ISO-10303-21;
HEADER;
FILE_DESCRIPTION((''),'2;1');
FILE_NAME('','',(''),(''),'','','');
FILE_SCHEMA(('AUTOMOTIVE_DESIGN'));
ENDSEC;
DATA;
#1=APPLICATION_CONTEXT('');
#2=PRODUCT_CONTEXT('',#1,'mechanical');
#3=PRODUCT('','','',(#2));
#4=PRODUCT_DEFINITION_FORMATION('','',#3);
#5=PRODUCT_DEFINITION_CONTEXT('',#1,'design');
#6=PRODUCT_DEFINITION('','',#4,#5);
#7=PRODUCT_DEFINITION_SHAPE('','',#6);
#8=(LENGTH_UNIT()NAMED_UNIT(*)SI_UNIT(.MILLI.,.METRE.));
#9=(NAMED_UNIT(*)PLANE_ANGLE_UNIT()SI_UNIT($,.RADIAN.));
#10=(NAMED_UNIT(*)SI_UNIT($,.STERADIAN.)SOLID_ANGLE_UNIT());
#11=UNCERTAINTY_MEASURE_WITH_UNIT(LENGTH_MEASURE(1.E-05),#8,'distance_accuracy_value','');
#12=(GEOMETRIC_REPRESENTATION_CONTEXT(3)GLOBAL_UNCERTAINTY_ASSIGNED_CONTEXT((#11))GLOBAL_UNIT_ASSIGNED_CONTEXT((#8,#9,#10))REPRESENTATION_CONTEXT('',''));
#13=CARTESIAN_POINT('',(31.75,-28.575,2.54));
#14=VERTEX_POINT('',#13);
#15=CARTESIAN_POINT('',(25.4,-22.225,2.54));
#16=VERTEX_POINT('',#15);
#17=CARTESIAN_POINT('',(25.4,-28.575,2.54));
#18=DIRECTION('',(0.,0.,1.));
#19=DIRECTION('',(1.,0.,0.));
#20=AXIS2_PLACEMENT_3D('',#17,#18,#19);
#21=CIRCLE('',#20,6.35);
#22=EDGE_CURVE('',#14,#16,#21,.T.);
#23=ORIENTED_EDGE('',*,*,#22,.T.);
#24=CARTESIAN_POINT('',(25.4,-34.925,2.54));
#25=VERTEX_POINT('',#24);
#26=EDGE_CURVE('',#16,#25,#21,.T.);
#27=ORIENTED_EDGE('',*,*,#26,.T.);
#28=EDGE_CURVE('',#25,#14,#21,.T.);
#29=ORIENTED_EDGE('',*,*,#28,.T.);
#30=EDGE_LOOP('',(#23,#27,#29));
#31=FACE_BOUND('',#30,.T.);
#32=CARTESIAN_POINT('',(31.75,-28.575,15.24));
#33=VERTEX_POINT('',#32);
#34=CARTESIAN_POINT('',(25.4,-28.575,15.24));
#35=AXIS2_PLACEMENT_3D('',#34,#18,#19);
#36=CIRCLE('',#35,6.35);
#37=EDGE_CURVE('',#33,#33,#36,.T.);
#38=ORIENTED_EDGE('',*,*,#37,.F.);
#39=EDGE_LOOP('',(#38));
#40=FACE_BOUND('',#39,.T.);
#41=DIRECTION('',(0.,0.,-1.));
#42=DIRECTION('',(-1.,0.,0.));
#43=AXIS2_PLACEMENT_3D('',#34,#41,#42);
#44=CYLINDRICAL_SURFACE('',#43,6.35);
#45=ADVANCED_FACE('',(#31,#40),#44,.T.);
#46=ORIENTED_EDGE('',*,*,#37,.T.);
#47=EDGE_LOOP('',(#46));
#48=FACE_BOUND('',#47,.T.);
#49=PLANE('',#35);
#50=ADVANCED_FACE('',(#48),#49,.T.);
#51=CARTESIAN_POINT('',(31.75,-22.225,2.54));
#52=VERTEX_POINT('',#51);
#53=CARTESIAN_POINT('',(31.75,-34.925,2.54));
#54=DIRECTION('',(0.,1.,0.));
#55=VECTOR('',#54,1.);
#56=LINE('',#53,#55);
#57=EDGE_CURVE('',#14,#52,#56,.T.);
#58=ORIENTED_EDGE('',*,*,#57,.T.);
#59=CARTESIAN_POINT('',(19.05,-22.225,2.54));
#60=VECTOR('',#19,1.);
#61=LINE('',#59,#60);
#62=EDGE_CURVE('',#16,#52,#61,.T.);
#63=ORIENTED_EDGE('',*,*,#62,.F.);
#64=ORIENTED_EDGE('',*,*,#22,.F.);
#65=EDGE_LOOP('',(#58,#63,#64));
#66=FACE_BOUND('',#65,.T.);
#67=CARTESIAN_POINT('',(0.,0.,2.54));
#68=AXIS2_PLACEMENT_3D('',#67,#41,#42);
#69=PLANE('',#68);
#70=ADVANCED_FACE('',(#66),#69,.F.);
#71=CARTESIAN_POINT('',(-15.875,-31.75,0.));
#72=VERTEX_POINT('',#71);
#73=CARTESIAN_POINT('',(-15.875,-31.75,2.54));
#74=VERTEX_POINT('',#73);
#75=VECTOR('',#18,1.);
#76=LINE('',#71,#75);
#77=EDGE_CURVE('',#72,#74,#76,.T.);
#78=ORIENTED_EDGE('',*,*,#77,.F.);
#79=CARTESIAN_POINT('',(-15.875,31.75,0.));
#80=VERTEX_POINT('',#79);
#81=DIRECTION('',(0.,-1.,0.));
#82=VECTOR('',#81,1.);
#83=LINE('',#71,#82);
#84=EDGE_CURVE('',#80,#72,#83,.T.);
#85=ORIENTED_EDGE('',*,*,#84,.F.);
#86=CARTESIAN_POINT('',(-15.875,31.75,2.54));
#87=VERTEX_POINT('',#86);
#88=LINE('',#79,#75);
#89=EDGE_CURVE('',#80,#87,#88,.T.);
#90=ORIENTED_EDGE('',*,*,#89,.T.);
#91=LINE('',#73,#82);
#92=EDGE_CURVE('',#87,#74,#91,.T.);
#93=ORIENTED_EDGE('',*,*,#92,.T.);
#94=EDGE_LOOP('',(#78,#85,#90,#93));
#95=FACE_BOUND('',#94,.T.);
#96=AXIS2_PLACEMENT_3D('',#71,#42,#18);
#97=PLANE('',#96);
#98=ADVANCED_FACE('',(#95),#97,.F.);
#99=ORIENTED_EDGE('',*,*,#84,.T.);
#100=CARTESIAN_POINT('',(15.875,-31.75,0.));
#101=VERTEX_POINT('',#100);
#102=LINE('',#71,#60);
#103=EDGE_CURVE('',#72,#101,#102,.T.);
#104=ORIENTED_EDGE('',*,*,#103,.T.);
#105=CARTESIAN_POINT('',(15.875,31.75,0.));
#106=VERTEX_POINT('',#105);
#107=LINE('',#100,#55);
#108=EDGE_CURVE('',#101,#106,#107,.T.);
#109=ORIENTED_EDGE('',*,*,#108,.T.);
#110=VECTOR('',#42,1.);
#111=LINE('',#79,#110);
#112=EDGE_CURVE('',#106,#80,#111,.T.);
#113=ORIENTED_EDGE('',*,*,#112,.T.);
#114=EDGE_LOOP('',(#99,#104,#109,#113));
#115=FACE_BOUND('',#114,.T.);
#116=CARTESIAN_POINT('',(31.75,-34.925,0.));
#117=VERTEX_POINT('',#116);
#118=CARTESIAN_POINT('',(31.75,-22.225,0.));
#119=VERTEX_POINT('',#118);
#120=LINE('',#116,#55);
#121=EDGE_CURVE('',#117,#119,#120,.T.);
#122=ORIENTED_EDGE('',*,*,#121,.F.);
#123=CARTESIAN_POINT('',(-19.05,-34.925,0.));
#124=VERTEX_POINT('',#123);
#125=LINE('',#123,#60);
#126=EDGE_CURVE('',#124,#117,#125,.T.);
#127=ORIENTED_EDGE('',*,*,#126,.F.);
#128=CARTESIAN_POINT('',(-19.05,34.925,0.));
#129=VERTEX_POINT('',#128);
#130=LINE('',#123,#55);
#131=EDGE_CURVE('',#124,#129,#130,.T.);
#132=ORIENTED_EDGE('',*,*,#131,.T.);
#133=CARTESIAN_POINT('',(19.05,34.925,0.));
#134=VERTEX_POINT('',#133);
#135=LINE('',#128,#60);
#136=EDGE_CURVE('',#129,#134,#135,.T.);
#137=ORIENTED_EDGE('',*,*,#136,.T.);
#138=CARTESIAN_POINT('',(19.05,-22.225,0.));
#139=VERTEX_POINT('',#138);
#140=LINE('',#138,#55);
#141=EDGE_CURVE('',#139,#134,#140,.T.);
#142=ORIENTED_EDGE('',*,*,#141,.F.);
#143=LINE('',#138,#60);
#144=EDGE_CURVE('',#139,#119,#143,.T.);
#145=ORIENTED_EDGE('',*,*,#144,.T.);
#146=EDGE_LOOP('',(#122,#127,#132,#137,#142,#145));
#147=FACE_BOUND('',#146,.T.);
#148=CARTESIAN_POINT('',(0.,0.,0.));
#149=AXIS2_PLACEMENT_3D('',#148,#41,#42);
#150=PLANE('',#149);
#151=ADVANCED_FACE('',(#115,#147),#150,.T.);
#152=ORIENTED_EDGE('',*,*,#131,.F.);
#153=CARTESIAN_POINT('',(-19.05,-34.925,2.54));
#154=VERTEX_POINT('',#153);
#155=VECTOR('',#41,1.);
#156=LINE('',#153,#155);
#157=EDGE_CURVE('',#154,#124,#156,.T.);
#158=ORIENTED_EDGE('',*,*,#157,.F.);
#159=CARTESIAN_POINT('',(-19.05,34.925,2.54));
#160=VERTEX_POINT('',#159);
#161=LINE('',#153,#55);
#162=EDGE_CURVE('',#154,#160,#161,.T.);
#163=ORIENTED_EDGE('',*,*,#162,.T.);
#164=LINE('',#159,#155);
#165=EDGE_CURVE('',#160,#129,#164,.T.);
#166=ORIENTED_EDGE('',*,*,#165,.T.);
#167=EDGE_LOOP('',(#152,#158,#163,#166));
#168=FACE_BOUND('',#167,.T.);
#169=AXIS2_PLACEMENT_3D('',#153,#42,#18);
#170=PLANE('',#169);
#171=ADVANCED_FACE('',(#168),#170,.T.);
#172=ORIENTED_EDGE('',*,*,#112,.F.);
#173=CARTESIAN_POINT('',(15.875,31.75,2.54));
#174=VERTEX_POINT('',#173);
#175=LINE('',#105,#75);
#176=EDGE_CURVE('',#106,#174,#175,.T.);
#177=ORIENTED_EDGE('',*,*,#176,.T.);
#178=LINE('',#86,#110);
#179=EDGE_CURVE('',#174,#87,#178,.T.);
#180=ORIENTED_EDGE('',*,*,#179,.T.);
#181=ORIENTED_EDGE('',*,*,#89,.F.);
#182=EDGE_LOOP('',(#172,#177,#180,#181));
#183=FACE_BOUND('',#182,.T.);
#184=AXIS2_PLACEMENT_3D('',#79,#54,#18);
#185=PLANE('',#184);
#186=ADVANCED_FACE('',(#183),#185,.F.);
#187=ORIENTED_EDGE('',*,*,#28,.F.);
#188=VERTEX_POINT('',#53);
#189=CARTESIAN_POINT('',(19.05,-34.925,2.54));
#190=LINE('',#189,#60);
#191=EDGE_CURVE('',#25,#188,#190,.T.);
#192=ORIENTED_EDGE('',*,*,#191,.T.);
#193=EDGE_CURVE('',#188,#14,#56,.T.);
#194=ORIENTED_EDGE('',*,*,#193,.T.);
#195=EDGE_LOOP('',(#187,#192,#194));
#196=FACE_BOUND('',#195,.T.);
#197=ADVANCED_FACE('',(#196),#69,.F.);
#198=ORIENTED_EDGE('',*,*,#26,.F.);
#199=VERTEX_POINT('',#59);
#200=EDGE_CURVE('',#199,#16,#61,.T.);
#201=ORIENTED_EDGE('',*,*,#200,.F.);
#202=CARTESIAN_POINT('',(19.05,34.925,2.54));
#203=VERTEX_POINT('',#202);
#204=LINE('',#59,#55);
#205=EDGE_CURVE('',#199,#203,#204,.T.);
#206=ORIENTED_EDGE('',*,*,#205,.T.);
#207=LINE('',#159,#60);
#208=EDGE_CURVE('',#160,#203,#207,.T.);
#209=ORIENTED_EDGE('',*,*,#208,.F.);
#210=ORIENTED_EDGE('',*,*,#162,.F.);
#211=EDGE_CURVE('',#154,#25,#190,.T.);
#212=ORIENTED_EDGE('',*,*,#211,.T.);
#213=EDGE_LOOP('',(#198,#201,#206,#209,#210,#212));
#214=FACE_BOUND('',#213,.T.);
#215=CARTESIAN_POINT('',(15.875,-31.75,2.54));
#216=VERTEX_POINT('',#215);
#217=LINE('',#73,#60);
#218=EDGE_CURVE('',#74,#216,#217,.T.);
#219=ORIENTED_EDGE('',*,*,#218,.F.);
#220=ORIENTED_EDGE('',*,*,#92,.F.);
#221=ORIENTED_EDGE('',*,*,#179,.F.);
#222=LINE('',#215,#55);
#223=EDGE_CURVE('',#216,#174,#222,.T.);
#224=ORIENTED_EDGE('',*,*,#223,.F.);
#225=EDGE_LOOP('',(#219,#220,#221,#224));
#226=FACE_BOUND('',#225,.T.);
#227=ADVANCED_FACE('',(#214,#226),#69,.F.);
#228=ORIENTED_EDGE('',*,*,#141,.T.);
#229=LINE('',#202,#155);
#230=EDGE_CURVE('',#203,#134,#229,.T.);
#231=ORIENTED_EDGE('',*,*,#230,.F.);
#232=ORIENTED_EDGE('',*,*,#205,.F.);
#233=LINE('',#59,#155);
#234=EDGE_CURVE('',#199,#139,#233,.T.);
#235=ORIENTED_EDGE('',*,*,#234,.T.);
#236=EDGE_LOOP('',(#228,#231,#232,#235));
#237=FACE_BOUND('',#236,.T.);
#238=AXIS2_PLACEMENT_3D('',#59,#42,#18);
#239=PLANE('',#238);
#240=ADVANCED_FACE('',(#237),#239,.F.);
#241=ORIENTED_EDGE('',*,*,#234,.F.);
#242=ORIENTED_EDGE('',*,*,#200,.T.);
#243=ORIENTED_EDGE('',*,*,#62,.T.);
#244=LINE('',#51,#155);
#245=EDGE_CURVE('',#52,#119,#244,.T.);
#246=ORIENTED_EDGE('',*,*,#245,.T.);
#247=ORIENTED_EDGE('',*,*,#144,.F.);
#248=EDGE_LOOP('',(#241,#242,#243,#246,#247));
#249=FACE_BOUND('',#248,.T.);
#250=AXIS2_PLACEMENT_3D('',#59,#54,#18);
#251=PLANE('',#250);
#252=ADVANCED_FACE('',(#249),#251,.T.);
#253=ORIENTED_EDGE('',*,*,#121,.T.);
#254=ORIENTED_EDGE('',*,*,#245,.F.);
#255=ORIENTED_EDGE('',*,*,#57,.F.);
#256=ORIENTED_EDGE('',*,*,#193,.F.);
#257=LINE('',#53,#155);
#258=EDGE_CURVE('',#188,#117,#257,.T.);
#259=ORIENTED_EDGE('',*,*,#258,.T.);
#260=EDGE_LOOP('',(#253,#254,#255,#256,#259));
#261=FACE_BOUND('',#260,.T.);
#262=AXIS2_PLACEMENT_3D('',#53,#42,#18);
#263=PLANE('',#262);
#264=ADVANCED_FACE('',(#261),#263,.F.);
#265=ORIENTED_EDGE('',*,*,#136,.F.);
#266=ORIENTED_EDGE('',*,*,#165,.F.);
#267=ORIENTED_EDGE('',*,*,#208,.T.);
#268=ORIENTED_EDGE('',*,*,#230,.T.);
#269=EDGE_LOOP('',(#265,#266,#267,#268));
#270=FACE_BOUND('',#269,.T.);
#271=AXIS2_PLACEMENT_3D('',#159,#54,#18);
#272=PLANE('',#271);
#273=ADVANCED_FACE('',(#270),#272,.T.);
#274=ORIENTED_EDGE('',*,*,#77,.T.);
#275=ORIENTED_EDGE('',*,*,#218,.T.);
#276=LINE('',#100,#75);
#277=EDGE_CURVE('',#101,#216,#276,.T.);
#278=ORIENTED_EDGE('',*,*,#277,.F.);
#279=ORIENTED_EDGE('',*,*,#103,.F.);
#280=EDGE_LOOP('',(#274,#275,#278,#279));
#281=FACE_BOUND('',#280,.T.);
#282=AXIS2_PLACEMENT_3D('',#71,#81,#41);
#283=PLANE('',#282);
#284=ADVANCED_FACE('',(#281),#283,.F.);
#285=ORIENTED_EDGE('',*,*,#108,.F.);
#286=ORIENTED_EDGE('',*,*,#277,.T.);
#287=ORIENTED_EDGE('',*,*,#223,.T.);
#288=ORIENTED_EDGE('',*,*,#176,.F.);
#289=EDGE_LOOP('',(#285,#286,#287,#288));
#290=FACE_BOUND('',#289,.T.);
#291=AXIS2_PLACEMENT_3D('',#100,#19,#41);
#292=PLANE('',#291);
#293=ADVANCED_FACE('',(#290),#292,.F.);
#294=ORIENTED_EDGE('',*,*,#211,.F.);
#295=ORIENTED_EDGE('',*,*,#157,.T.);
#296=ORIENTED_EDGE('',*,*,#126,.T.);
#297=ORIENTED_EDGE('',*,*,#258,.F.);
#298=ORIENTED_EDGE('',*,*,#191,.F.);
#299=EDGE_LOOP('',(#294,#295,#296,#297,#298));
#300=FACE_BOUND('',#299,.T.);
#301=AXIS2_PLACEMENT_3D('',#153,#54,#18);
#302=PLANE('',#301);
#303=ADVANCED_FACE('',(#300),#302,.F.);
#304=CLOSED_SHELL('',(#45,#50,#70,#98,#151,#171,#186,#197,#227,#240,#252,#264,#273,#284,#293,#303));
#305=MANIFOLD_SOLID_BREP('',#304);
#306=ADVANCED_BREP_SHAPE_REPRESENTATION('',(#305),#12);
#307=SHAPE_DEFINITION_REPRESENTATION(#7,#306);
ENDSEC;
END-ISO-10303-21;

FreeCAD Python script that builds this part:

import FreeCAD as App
import Part
import Sketcher
from FreeCAD import Vector
Q = App.Units.Quantity


def add_polygon(sketch, points):
    """Adds a closed chain of lines whose ends are joined by coincident constraints."""
    first, n = sketch.GeometryCount, len(points)
    for a, b in zip(points, points[1:] + points[:1]):
        sketch.addGeometry(Part.LineSegment(App.Vector(*a, 0), App.Vector(*b, 0)), False)
    for i in range(n):
        sketch.addConstraint(Sketcher.Constraint("Coincident", first + i, 2, first + (i + 1) % n, 1))

doc = App.newDocument("Part")
body = doc.addObject("PartDesign::Body", "Body")

# Sketch on XY plane
sketch1 = body.newObject("Sketcher::SketchObject", "Sketch")
sketch1.AttachmentSupport = (doc.getObject("XY_Plane"), [""])
sketch1.MapMode = "FlatFace"
add_polygon(sketch1, [(-19.05, -34.925), (31.75, -34.925), (31.75, -22.225), (19.05, -22.225), (19.05, 34.925), (-19.05, 34.925)])  # lines 0-5
sketch1.addConstraint(Sketcher.Constraint("Horizontal", 0))
sketch1.addConstraint(Sketcher.Constraint("Vertical", 1))
sketch1.addConstraint(Sketcher.Constraint("Horizontal", 2))
sketch1.addConstraint(Sketcher.Constraint("Vertical", 3))
sketch1.addConstraint(Sketcher.Constraint("Horizontal", 4))
sketch1.addConstraint(Sketcher.Constraint("Vertical", 5))
sketch1.addConstraint(Sketcher.Constraint("Symmetric", 3, 2, 5, 2, -1, 1))
sketch1.addConstraint(Sketcher.Constraint("Equal", 2, 1))
sketch1.addConstraint(Sketcher.Constraint("DistanceX", 0, 1, 0, 2, Q("2 in")))
sketch1.addConstraint(Sketcher.Constraint("DistanceX", 2, 2, 2, 1, Q("0.5 in")))
sketch1.addConstraint(Sketcher.Constraint("DistanceY", 3, 1, 3, 2, Q("2.25 in")))
pad1 = body.newObject("PartDesign::Pad", "Pad")
pad1.Profile = sketch1
pad1.Length = Q("0.1 in")

# Sketch on XY plane
sketch2 = body.newObject("Sketcher::SketchObject", "Sketch001")
sketch2.AttachmentSupport = (doc.getObject("XY_Plane"), [""])
sketch2.MapMode = "FlatFace"
sketch2.AttachmentOffset = App.Placement(Vector(0, 0, 0.1 * 25.4), App.Rotation())
add_polygon(sketch2, [(-15.875, 31.75), (-15.875, -31.75), (15.875, -31.75), (15.875, 31.75)])  # lines 0-3
sketch2.addConstraint(Sketcher.Constraint("Vertical", 0))
sketch2.addConstraint(Sketcher.Constraint("Horizontal", 1))
sketch2.addConstraint(Sketcher.Constraint("Vertical", 2))
sketch2.addConstraint(Sketcher.Constraint("Horizontal", 3))
sketch2.addConstraint(Sketcher.Constraint("Symmetric", 0, 2, 2, 2, -1, 1))
sketch2.addConstraint(Sketcher.Constraint("DistanceY", 0, 2, 0, 1, Q("2.5 in")))
sketch2.addConstraint(Sketcher.Constraint("DistanceX", 1, 1, 1, 2, Q("1.25 in")))
pocket1 = body.newObject("PartDesign::Pocket", "Pocket")
pocket1.Profile = sketch2
pocket1.Type = "ThroughAll"

# Sketch on XY plane
sketch3 = body.newObject("Sketcher::SketchObject", "Sketch002")
sketch3.AttachmentSupport = (doc.getObject("XY_Plane"), [""])
sketch3.MapMode = "FlatFace"
sketch3.AttachmentOffset = App.Placement(Vector(0, 0, 0.1 * 25.4), App.Rotation())
sketch3.addGeometry(Part.Circle(Vector(25.4, -28.575, 0), Vector(0, 0, 1), 6.35), False)
sketch3.addConstraint(Sketcher.Constraint("Diameter", 0, Q("0.5 in")))
sketch3.addConstraint(Sketcher.Constraint("DistanceX", -1, 1, 0, 3, Q("1 in")))
sketch3.addConstraint(Sketcher.Constraint("DistanceY", 0, 3, -1, 1, Q("1.125 in")))
pad2 = body.newObject("PartDesign::Pad", "Pad001")
pad2.Profile = sketch3
pad2.Length = Q("0.5 in")

doc.recompute()
